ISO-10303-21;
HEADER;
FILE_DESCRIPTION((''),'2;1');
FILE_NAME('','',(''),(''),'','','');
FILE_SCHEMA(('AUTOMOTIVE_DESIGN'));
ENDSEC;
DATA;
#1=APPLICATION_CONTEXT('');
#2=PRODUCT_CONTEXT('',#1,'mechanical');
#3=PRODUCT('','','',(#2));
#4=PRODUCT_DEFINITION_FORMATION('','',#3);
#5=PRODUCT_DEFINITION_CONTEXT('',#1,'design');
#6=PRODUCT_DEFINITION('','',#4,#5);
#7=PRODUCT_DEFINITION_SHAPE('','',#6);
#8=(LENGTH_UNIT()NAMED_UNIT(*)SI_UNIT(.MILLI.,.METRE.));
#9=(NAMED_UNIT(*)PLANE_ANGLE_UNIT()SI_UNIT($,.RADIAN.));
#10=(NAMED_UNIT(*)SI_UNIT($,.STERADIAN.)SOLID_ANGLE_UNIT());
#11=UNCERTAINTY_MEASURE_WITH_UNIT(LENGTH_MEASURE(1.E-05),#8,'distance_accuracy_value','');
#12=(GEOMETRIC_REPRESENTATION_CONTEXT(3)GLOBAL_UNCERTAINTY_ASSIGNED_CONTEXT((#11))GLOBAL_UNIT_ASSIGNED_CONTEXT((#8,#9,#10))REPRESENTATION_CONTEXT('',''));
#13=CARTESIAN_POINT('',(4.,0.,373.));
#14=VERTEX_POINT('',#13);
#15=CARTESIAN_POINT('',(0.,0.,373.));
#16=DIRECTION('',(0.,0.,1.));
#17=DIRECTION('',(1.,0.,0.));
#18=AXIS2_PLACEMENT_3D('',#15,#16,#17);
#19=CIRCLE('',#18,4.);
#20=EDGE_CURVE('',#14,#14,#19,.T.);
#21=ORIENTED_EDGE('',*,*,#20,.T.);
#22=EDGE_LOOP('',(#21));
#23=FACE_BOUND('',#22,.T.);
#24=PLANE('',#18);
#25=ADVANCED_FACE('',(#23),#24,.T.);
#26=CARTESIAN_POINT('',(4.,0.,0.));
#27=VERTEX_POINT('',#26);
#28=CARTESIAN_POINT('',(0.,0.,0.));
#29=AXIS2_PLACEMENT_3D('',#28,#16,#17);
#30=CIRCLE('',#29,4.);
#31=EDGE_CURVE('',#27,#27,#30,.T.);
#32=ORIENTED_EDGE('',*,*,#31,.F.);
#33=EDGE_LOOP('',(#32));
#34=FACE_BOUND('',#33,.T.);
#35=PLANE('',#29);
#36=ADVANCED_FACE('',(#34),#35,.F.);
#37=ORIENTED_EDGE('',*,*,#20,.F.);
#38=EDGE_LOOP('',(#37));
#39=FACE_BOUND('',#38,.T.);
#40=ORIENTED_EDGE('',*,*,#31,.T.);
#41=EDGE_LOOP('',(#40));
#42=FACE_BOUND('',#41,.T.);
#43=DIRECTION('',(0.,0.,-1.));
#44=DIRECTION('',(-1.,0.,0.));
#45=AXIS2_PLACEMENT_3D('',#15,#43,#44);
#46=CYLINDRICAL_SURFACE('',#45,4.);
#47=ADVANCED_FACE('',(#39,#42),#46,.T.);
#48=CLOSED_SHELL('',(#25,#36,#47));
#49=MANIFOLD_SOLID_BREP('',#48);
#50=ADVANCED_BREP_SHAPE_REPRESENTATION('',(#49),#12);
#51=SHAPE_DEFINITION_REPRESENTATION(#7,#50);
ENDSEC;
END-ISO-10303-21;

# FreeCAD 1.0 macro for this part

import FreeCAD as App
import Part
import Sketcher
from FreeCAD import Vector
Q = App.Units.Quantity

doc = App.newDocument("Part")
body = doc.addObject("PartDesign::Body", "Body")

# Sketch on XY plane
sketch1 = doc.addObject("Sketcher::SketchObject", "Sketch")
body.addObject(sketch1)
sketch1.AttachmentSupport = (doc.XY_Plane, [""])
sketch1.MapMode = "FlatFace"
sketch1.addGeometry(Part.Circle(Vector(0, 0, 0), Vector(0, 0, 1), 4), False)
sketch1.addConstraint(Sketcher.Constraint("Coincident", 0, 3, -1, 1))
sketch1.addConstraint(Sketcher.Constraint("Diameter", 0, Q("8 mm")))
pad1 = doc.addObject("PartDesign::Pad", "Pad")
body.addObject(pad1)
pad1.Profile = sketch1
pad1.Length = 373

doc.recompute()
